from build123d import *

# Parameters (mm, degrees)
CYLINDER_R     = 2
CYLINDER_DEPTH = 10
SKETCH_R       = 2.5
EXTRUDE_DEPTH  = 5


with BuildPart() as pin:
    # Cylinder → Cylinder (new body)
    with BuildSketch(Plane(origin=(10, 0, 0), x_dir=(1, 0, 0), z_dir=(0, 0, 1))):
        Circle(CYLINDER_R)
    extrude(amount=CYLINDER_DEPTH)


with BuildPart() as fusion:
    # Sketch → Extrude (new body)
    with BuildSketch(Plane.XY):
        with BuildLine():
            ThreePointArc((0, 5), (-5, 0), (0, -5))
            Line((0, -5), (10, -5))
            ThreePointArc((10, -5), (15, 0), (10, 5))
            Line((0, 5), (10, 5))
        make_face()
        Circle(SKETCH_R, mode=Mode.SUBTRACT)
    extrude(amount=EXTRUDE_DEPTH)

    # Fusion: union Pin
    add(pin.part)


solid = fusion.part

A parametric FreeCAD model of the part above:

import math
import FreeCAD as App
import Part
import Sketcher
from FreeCAD import Vector
Q = App.Units.Quantity

doc = App.newDocument("Part")
body = doc.addObject("PartDesign::Body", "Body")

sketch1 = body.newObject("Sketcher::SketchObject", "Sketch")
sketch1.AttachmentSupport = (doc.getObject("XY_Plane"), [""])
sketch1.MapMode = "FlatFace"
sketch1.addGeometry(Part.Circle(Vector(10, 0, 0), Vector(0, 0, 1), 2), False)
sketch1.addConstraint([
    Sketcher.Constraint("PointOnObject", 0, 3, -1),
    Sketcher.Constraint("Diameter", 0, Q("4 mm")),
    Sketcher.Constraint("DistanceX", -1, 1, 0, 3, Q("10 mm")),
])
pad1 = body.newObject("PartDesign::Pad", "Pad")
pad1.Profile = sketch1
pad1.Length = 10
body2 = doc.addObject("PartDesign::Body", "Body001")

sketch2 = body2.newObject("Sketcher::SketchObject", "Sketch001")
sketch2.AttachmentSupport = (doc.getObject("XY_Plane001"), [""])
sketch2.MapMode = "FlatFace"
sketch2.addGeometry([
    Part.ArcOfCircle(Part.Circle(Vector(0, 0, 0), Vector(0, 0, 1), 5), math.radians(90), math.radians(270)),
    Part.LineSegment(Vector(0, -5, 0), Vector(10, -5, 0)),
    Part.ArcOfCircle(Part.Circle(Vector(10, 0, 0), Vector(0, 0, 1), 5), math.radians(-90), math.radians(90)),
    Part.LineSegment(Vector(10, 5, 0), Vector(0, 5, 0)),
    Part.Circle(Vector(0, 0, 0), Vector(0, 0, 1), 2.5),
], False)
sketch2.addConstraint([
    Sketcher.Constraint("Tangent", 0, 2, 1, 1),
    Sketcher.Constraint("Tangent", 1, 2, 2, 1),
    Sketcher.Constraint("Tangent", 2, 2, 3, 1),
    Sketcher.Constraint("Tangent", 3, 2, 0, 1),
    Sketcher.Constraint("Horizontal", 1),
    Sketcher.Constraint("Horizontal", 3),
    Sketcher.Constraint("Coincident", 0, 3, -1, 1),
    Sketcher.Constraint("Coincident", 4, 3, -1, 1),
    Sketcher.Constraint("Diameter", 4, Q("5 mm")),
    Sketcher.Constraint("Radius", 0, Q("5 mm")),
    Sketcher.Constraint("DistanceX", 1, 1, 1, 2, Q("10 mm")),
])
pad2 = body2.newObject("PartDesign::Pad", "Pad001")
pad2.Profile = sketch2
pad2.Length = 5
doc.recompute()

boolean = body2.newObject("PartDesign::Boolean", "Boolean")
boolean.Type = "Fuse"
boolean.addObjects([body])

doc.recompute()
